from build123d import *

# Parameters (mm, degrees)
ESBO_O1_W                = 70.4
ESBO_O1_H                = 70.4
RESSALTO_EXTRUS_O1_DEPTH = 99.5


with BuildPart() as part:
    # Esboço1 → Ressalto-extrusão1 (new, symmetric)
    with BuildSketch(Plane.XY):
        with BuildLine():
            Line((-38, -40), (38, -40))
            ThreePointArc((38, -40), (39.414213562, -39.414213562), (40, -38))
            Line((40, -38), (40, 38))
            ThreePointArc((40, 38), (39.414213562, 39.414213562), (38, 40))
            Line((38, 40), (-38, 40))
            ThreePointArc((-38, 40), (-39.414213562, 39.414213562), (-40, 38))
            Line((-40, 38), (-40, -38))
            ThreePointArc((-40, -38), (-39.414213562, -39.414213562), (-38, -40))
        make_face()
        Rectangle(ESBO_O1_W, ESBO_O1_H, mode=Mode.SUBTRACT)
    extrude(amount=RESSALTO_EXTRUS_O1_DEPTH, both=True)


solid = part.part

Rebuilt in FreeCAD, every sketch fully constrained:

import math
import FreeCAD as App
import Part
import Sketcher

V = App.Vector


def add_polygon(sketch, points):
    """Adds a closed chain of lines whose ends are joined by coincident constraints."""
    first, n = sketch.GeometryCount, len(points)
    for a, b in zip(points, points[1:] + points[:1]):
        sketch.addGeometry(Part.LineSegment(App.Vector(*a, 0), App.Vector(*b, 0)), False)
    for i in range(n):
        sketch.addConstraint(Sketcher.Constraint("Coincident", first + i, 2, first + (i + 1) % n, 1))

doc = App.newDocument("Part")
body = doc.addObject("PartDesign::Body", "Body")

# Sketch on XY plane
sketch1 = doc.addObject("Sketcher::SketchObject", "Sketch")
body.addObject(sketch1)
sketch1.AttachmentSupport = (doc.XY_Plane, [""])
sketch1.MapMode = "FlatFace"
sketch1.addGeometry(Part.LineSegment(V(-38, -40, 0), V(38, -40, 0)), False)  # 0
sketch1.addGeometry(Part.ArcOfCircle(Part.Circle(V(38, -38, 0), V(0, 0, 1), 2), math.radians(-90), math.radians(0)), False)  # 1
sketch1.addGeometry(Part.LineSegment(V(40, -38, 0), V(40, 38, 0)), False)  # 2
sketch1.addGeometry(Part.ArcOfCircle(Part.Circle(V(38, 38, 0), V(0, 0, 1), 2), math.radians(0), math.radians(90)), False)  # 3
sketch1.addGeometry(Part.LineSegment(V(38, 40, 0), V(-38, 40, 0)), False)  # 4
sketch1.addGeometry(Part.ArcOfCircle(Part.Circle(V(-38, 38, 0), V(0, 0, 1), 2), math.radians(90), math.radians(180)), False)  # 5
sketch1.addGeometry(Part.LineSegment(V(-40, 38, 0), V(-40, -38, 0)), False)  # 6
sketch1.addGeometry(Part.ArcOfCircle(Part.Circle(V(-38, -38, 0), V(0, 0, 1), 2), math.radians(-180), math.radians(-90)), False)  # 7
add_polygon(sketch1, [(35.2, -35.2), (-35.2, -35.2), (-35.2, 35.2), (35.2, 35.2)])  # lines 8-11
sketch1.addConstraint([
    Sketcher.Constraint("Tangent", 0, 2, 1, 1),
    Sketcher.Constraint("Tangent", 1, 2, 2, 1),
    Sketcher.Constraint("Tangent", 2, 2, 3, 1),
    Sketcher.Constraint("Tangent", 3, 2, 4, 1),
    Sketcher.Constraint("Tangent", 4, 2, 5, 1),
    Sketcher.Constraint("Tangent", 5, 2, 6, 1),
    Sketcher.Constraint("Tangent", 6, 2, 7, 1),
    Sketcher.Constraint("Tangent", 7, 2, 0, 1),
    Sketcher.Constraint("Horizontal", 0),
    Sketcher.Constraint("Vertical", 2),
    Sketcher.Constraint("Horizontal", 4),
    Sketcher.Constraint("Vertical", 6),
    Sketcher.Constraint("Horizontal", 8),
    Sketcher.Constraint("Vertical", 9),
    Sketcher.Constraint("Horizontal", 10),
    Sketcher.Constraint("Vertical", 11),
    Sketcher.Constraint("Equal", 1, 3),
    Sketcher.Constraint("Equal", 3, 5),
    Sketcher.Constraint("Equal", 5, 7),
    Sketcher.Constraint("Symmetric", 1, 3, 5, 3, -1, 1),
    Sketcher.Constraint("Symmetric", 8, 2, 10, 2, -1, 1),
    Sketcher.Constraint("Equal", 4, 2),
    Sketcher.Constraint("Equal", 10, 9),
    Sketcher.Constraint("Radius", 1, 2.0),
    Sketcher.Constraint("DistanceX", 0, 1, 0, 2, 76.0),
    Sketcher.Constraint("DistanceX", 8, 2, 8, 1, 70.4),
])
pad1 = doc.addObject("PartDesign::Pad", "Pad")
body.addObject(pad1)
pad1.Profile = sketch1
pad1.Length = 199
pad1.Midplane = True

doc.recompute()
